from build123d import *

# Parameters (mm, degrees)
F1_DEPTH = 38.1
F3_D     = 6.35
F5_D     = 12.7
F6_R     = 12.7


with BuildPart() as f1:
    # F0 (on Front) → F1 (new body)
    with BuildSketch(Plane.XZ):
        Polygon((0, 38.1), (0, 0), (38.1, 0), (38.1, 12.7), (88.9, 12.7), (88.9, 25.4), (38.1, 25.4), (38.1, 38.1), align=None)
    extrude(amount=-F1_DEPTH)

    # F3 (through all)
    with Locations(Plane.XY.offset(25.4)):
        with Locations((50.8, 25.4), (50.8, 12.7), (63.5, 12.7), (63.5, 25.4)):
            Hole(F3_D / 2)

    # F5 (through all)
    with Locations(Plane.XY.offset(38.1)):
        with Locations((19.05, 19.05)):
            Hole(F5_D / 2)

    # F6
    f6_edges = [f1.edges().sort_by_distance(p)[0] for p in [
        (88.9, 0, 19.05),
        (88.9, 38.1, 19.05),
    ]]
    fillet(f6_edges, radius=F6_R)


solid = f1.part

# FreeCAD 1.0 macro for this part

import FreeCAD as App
import Part
import Sketcher
Q = App.Units.Quantity


def edges_at(feature, points):
    """Names of the edges that pass closest to the given points."""
    edges = feature.Shape.Edges
    near = lambda p: min(range(len(edges)), key=lambda i: edges[i].distToShape(Part.Vertex(*p))[0])
    return sorted({f"Edge{near(p) + 1}" for p in points})


def add_polygon(sketch, points):
    """Adds a closed chain of lines whose ends are joined by coincident constraints."""
    first, n = sketch.GeometryCount, len(points)
    for a, b in zip(points, points[1:] + points[:1]):
        sketch.addGeometry(Part.LineSegment(App.Vector(*a, 0), App.Vector(*b, 0)), False)
    for i in range(n):
        sketch.addConstraint(Sketcher.Constraint("Coincident", first + i, 2, first + (i + 1) % n, 1))

doc = App.newDocument("Part")
body = doc.addObject("PartDesign::Body", "Body")

# Sketch on XZ plane
sketch1 = doc.addObject("Sketcher::SketchObject", "Sketch")
body.addObject(sketch1)
sketch1.AttachmentSupport = (doc.XZ_Plane, [""])
sketch1.MapMode = "FlatFace"
add_polygon(sketch1, [(0, 38), (0, 0), (38, 0), (38, 13), (89, 13), (89, 25), (38, 25), (38, 38)])  # lines 0-7
sketch1.addConstraint([
    Sketcher.Constraint("Vertical", 0),
    Sketcher.Constraint("Horizontal", 1),
    Sketcher.Constraint("Vertical", 2),
    Sketcher.Constraint("Horizontal", 3),
    Sketcher.Constraint("Vertical", 4),
    Sketcher.Constraint("Horizontal", 5),
    Sketcher.Constraint("Vertical", 6),
    Sketcher.Constraint("Horizontal", 7),
    Sketcher.Constraint("Coincident", 0, 2, -1, 1),
    Sketcher.Constraint("Vertical", 2, 2, 5, 2),
    Sketcher.Constraint("Equal", 7, 0),
    Sketcher.Constraint("Equal", 2, 4),
    Sketcher.Constraint("Equal", 4, 6),
    Sketcher.Constraint("DistanceX", 3, 1, 3, 2, Q("2 in")),
    Sketcher.Constraint("DistanceX", 1, 1, 1, 2, Q("1.5 in")),
])
pad1 = doc.addObject("PartDesign::Pad", "Pad")
body.addObject(pad1)
pad1.Profile = sketch1
pad1.Length = Q("1.5 in")
pad1.Reversed = True

# Sketch on XY plane
sketch2 = doc.addObject("Sketcher::SketchObject", "Sketch001")
body.addObject(sketch2)
sketch2.AttachmentSupport = (doc.XY_Plane, [""])
sketch2.MapMode = "FlatFace"
sketch2.AttachmentOffset = App.Placement(App.Vector(0, 0, 1 * 25.4), App.Rotation())
sketch2.addGeometry([
    Part.Circle(App.Vector(50.8, 25.4, 0), App.Vector(0, 0, 1), 3.2),
    Part.Circle(App.Vector(50.8, 12.7, 0), App.Vector(0, 0, 1), 3.2),
    Part.Circle(App.Vector(63.5, 12.7, 0), App.Vector(0, 0, 1), 3.2),
    Part.Circle(App.Vector(63.5, 25.4, 0), App.Vector(0, 0, 1), 3.2),
], False)
sketch2.addConstraint([
    Sketcher.Constraint("Equal", 0, 1),
    Sketcher.Constraint("Equal", 1, 2),
    Sketcher.Constraint("Equal", 2, 3),
    Sketcher.Constraint("Horizontal", 1, 3, 2, 3),
    Sketcher.Constraint("Horizontal", 0, 3, 3, 3),
    Sketcher.Constraint("Vertical", 0, 3, 1, 3),
    Sketcher.Constraint("Vertical", 2, 3, 3, 3),
    Sketcher.Constraint("Diameter", 0, Q("0.25 in")),
    Sketcher.Constraint("DistanceX", -1, 1, 0, 3, Q("2 in")),
    Sketcher.Constraint("DistanceY", -1, 1, 0, 3, Q("1 in")),
    Sketcher.Constraint("DistanceY", -1, 1, 1, 3, Q("0.5 in")),
    Sketcher.Constraint("DistanceX", -1, 1, 2, 3, Q("2.5 in")),
])
doc.recompute()
hole = doc.addObject("PartDesign::Hole", "Hole")
body.addObject(hole)
hole.Profile = sketch2
hole.ThreadType = "None"
hole.Diameter = Q("0.25 in")
hole.DepthType = "ThroughAll"

# Sketch on XY plane
sketch3 = doc.addObject("Sketcher::SketchObject", "Sketch002")
body.addObject(sketch3)
sketch3.AttachmentSupport = (doc.XY_Plane, [""])
sketch3.MapMode = "FlatFace"
sketch3.AttachmentOffset = App.Placement(App.Vector(0, 0, 1.5 * 25.4), App.Rotation())
sketch3.addGeometry(Part.Circle(App.Vector(19, 19, 0), App.Vector(0, 0, 1), 6), False)
sketch3.addConstraint([
    Sketcher.Constraint("Diameter", 0, Q("0.5 in")),
    Sketcher.Constraint("DistanceX", -1, 1, 0, 3, Q("0.75 in")),
    Sketcher.Constraint("DistanceY", -1, 1, 0, 3, Q("0.75 in")),
])
doc.recompute()
hole2 = doc.addObject("PartDesign::Hole", "Hole001")
body.addObject(hole2)
hole2.Profile = sketch3
hole2.ThreadType = "None"
hole2.Diameter = Q("0.5 in")
hole2.DepthType = "ThroughAll"
doc.recompute()

fillet = doc.addObject("PartDesign::Fillet", "Fillet")
body.addObject(fillet)
fillet.Base = (hole2, edges_at(hole2, [(88.9, 0, 19.05), (88.9, 38.1, 19.05)]))
fillet.Radius = Q("0.5 in")

doc.recompute()
